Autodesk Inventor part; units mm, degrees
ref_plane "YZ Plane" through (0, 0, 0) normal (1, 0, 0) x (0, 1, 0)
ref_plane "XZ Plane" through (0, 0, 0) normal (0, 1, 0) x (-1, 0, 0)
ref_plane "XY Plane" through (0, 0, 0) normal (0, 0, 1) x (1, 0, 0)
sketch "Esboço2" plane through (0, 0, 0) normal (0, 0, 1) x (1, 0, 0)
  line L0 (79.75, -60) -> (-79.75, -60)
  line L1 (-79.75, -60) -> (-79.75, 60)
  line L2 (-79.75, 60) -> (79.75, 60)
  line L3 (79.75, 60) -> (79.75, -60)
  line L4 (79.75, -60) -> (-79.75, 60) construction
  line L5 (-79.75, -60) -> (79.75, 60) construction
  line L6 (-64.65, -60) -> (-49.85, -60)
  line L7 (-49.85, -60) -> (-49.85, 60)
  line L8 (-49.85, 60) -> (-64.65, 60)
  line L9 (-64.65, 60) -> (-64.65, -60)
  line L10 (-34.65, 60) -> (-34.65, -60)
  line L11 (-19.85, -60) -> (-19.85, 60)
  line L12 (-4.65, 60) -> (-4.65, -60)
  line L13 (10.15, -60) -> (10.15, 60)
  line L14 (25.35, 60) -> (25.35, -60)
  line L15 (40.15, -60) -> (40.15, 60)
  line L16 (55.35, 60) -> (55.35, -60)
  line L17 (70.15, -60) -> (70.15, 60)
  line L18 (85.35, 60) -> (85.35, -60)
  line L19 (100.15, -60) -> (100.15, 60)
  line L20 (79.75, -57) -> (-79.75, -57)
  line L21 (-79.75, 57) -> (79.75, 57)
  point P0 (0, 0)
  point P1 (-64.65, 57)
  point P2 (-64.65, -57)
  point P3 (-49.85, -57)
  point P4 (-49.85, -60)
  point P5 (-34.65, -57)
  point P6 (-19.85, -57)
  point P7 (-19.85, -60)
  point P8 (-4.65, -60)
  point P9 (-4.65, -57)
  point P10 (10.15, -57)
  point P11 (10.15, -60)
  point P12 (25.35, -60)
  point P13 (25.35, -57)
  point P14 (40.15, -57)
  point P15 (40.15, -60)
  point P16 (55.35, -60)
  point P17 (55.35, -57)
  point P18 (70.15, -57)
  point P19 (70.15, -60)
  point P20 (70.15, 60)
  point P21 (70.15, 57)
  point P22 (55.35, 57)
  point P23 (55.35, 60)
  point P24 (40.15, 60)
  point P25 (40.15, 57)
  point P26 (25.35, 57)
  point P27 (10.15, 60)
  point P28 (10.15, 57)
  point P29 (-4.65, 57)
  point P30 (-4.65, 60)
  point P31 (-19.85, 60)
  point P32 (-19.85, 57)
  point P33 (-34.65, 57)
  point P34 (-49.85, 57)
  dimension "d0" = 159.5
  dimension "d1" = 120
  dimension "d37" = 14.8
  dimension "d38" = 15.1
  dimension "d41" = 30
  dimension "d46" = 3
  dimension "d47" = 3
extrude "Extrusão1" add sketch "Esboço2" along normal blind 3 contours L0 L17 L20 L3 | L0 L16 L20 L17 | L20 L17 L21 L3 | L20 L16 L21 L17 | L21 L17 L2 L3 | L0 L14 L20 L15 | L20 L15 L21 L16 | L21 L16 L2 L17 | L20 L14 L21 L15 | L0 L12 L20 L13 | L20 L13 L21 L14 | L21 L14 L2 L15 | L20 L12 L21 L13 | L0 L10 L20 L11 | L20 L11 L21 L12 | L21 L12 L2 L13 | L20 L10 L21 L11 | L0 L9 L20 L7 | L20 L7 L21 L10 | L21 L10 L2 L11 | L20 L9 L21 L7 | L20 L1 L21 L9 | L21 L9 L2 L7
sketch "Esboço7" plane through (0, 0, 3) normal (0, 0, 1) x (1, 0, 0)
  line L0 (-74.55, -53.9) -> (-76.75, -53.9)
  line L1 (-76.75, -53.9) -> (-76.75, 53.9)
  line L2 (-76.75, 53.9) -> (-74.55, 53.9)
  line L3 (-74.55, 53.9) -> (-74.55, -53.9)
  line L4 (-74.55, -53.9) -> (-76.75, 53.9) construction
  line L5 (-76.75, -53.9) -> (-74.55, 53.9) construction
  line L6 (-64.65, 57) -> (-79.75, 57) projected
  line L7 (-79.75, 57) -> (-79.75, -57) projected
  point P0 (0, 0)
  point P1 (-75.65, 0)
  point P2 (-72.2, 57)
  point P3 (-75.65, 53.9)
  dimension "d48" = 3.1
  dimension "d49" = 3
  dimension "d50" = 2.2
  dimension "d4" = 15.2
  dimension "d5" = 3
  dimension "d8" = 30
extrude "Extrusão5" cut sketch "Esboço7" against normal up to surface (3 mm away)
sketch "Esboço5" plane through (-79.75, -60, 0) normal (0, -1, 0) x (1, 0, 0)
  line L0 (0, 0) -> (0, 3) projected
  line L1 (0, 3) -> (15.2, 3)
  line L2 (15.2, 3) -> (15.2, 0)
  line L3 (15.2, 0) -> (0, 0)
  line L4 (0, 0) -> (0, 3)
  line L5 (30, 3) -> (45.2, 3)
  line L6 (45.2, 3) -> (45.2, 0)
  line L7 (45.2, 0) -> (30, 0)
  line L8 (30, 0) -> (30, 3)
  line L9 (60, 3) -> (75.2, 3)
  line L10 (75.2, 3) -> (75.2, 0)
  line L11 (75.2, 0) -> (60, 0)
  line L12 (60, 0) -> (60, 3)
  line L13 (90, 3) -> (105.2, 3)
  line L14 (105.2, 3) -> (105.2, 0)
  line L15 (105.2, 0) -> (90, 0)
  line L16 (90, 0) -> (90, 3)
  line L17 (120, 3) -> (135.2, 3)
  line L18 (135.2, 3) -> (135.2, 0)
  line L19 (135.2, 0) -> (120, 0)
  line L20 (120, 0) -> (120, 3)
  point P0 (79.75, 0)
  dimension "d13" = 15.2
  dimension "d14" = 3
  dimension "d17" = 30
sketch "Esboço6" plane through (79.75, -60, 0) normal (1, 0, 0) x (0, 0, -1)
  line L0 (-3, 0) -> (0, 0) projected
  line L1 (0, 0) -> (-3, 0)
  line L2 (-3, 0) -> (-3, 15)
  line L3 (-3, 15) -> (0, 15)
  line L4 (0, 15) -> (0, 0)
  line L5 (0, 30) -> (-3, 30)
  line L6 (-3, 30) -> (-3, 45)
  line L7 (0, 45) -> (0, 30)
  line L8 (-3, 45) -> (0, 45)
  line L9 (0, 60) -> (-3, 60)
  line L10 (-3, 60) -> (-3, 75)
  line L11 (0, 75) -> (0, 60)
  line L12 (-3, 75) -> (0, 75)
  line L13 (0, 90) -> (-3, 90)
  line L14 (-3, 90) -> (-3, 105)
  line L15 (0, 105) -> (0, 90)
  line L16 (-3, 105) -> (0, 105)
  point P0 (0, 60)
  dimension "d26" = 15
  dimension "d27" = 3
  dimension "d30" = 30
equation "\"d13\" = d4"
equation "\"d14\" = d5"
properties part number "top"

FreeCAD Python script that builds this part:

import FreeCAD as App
import Part
import Sketcher
from FreeCAD import Vector
Q = App.Units.Quantity


def add_polygon(sketch, points):
    """Adds a closed chain of lines whose ends are joined by coincident constraints."""
    first, n = sketch.GeometryCount, len(points)
    for a, b in zip(points, points[1:] + points[:1]):
        sketch.addGeometry(Part.LineSegment(App.Vector(*a, 0), App.Vector(*b, 0)), False)
    for i in range(n):
        sketch.addConstraint(Sketcher.Constraint("Coincident", first + i, 2, first + (i + 1) % n, 1))

doc = App.newDocument("Part")
params = doc.addObject("Spreadsheet::Sheet", "Params")
for row, (alias, value) in enumerate([
    ("sketch1_height", "120 mm"),
    ("sketch1_height2", "3 mm"),
    ("sketch1_width", "14.8 mm"),
    ("sketch1_width2", "15.1 mm"),
    ("sketch1_width3", "24.4 mm"),
    ("pad1_length", "3 mm"),
    ("sketch2_width", "2.2 mm"),
    ("sketch2_height", "107.8 mm"),
    ("pocket1_length", "3 mm"),
], start=1):
    params.set(f"A{row}", alias)
    params.set(f"B{row}", "=" + value)
    params.setAlias(f"B{row}", alias)

body = doc.addObject("PartDesign::Body", "Body")

# Sketch on XY plane
sketch1 = body.newObject("Sketcher::SketchObject", "Sketch")
sketch1.AttachmentSupport = (doc.getObject("XY_Plane"), [""])
sketch1.MapMode = "FlatFace"
add_polygon(sketch1, [(79.75, -60), (79.75, 60), (55.35, 60), (55.35, 57), (40.15, 57), (40.15, 60), (25.35, 60), (25.35, 57), (10.15, 57), (10.15, 60), (-4.65, 60), (-4.65, 57), (-19.85, 57), (-19.85, 60), (-34.65, 60), (-34.65, 57), (-49.85, 57), (-49.85, 60), (-64.65, 60), (-64.65, 57), (-79.75, 57), (-79.75, -57), (-64.65, -57), (-64.65, -60), (-49.85, -60), (-49.85, -57), (-34.65, -57), (-34.65, -60), (-19.85, -60), (-19.85, -57), (-4.65, -57), (-4.65, -60), (10.15, -60), (10.15, -57), (25.35, -57), (25.35, -60), (40.15, -60), (40.15, -57), (55.35, -57), (55.35, -60)])  # lines 0-39
sketch1.addConstraint([
    Sketcher.Constraint("Vertical", 0),
    Sketcher.Constraint("Horizontal", 1),
    Sketcher.Constraint("Vertical", 2),
    Sketcher.Constraint("Horizontal", 3),
    Sketcher.Constraint("Vertical", 4),
    Sketcher.Constraint("Horizontal", 5),
    Sketcher.Constraint("Vertical", 6),
    Sketcher.Constraint("Horizontal", 7),
    Sketcher.Constraint("Vertical", 8),
    Sketcher.Constraint("Horizontal", 9),
    Sketcher.Constraint("Vertical", 10),
    Sketcher.Constraint("Horizontal", 11),
    Sketcher.Constraint("Vertical", 12),
    Sketcher.Constraint("Horizontal", 13),
    Sketcher.Constraint("Vertical", 14),
    Sketcher.Constraint("Horizontal", 15),
    Sketcher.Constraint("Vertical", 16),
    Sketcher.Constraint("Horizontal", 17),
    Sketcher.Constraint("Vertical", 18),
    Sketcher.Constraint("Horizontal", 19),
    Sketcher.Constraint("Vertical", 20),
    Sketcher.Constraint("Horizontal", 21),
    Sketcher.Constraint("Vertical", 22),
    Sketcher.Constraint("Horizontal", 23),
    Sketcher.Constraint("Vertical", 24),
    Sketcher.Constraint("Horizontal", 25),
    Sketcher.Constraint("Vertical", 26),
    Sketcher.Constraint("Horizontal", 27),
    Sketcher.Constraint("Vertical", 28),
    Sketcher.Constraint("Horizontal", 29),
    Sketcher.Constraint("Vertical", 30),
    Sketcher.Constraint("Horizontal", 31),
    Sketcher.Constraint("Vertical", 32),
    Sketcher.Constraint("Horizontal", 33),
    Sketcher.Constraint("Vertical", 34),
    Sketcher.Constraint("Horizontal", 35),
    Sketcher.Constraint("Vertical", 36),
    Sketcher.Constraint("Horizontal", 37),
    Sketcher.Constraint("Vertical", 38),
    Sketcher.Constraint("Horizontal", 39),
    Sketcher.Constraint("Symmetric", 18, 2, 21, 2, -1),
    Sketcher.Constraint("Symmetric", 16, 2, 23, 2, -1),
    Sketcher.Constraint("Symmetric", 14, 2, 25, 2, -1),
    Sketcher.Constraint("Symmetric", 12, 2, 27, 2, -1),
    Sketcher.Constraint("Symmetric", 10, 2, 29, 2, -1),
    Sketcher.Constraint("Symmetric", 8, 2, 31, 2, -1),
    Sketcher.Constraint("Symmetric", 6, 2, 33, 2, -1),
    Sketcher.Constraint("Symmetric", 4, 2, 35, 2, -1),
    Sketcher.Constraint("Symmetric", 2, 2, 37, 2, -1),
    Sketcher.Constraint("Horizontal", 1, 2, 4, 2),
    Sketcher.Constraint("Horizontal", 3, 2, 6, 2),
    Sketcher.Constraint("Horizontal", 5, 2, 8, 2),
    Sketcher.Constraint("Horizontal", 7, 2, 10, 2),
    Sketcher.Constraint("Horizontal", 9, 2, 12, 2),
    Sketcher.Constraint("Horizontal", 11, 2, 14, 2),
    Sketcher.Constraint("Horizontal", 13, 2, 16, 2),
    Sketcher.Constraint("Horizontal", 15, 2, 18, 2),
    Sketcher.Constraint("Horizontal", 35, 2, 38, 2),
    Sketcher.Constraint("Equal", 3, 7),
    Sketcher.Constraint("Equal", 5, 9),
    Sketcher.Constraint("Equal", 7, 11),
    Sketcher.Constraint("Equal", 9, 13),
    Sketcher.Constraint("Equal", 11, 15),
    Sketcher.Constraint("Equal", 13, 17),
    Sketcher.Constraint("DistanceY", 0, 1, 0, 2, Q("120 mm")),
    Sketcher.Constraint("DistanceY", 2, 2, 2, 1, Q("3 mm")),
    Sketcher.Constraint("DistanceX", 5, 2, 5, 1, Q("14.8 mm")),
    Sketcher.Constraint("DistanceX", 19, 2, 19, 1, Q("15.1 mm")),
    Sketcher.Constraint("DistanceX", 5, 2, 1, 2, Q("30 mm")),
    Sketcher.Constraint("DistanceX", 1, 2, 1, 1, Q("24.4 mm")),
    Sketcher.Constraint("DistanceX", -1, 1, 0, 2, Q("79.75 mm")),
])
sketch1.setExpression("Constraints[104]", "Params.sketch1_height")
sketch1.setExpression("Constraints[105]", "Params.sketch1_height2")
sketch1.setExpression("Constraints[106]", "Params.sketch1_width")
sketch1.setExpression("Constraints[107]", "Params.sketch1_width2")
sketch1.setExpression("Constraints[109]", "Params.sketch1_width3")
pad1 = body.newObject("PartDesign::Pad", "Pad")
pad1.Profile = sketch1
pad1.setExpression("Length", "Params.pad1_length")

# Sketch on XY plane
sketch2 = body.newObject("Sketcher::SketchObject", "Sketch001")
sketch2.AttachmentSupport = (doc.getObject("XY_Plane"), [""])
sketch2.MapMode = "FlatFace"
sketch2.AttachmentOffset = App.Placement(Vector(0, 0, 3), App.Rotation())
add_polygon(sketch2, [(-76.75, -53.9), (-74.55, -53.9), (-74.55, 53.9), (-76.75, 53.9)])  # lines 0-3
sketch2.addConstraint([
    Sketcher.Constraint("Horizontal", 0),
    Sketcher.Constraint("Vertical", 1),
    Sketcher.Constraint("Horizontal", 2),
    Sketcher.Constraint("Vertical", 3),
    Sketcher.Constraint("DistanceX", 0, 1, 0, 2, Q("2.2 mm")),
    Sketcher.Constraint("DistanceY", 1, 1, 1, 2, Q("107.8 mm")),
    Sketcher.Constraint("DistanceY", 0, 2, -1, 1, Q("53.9 mm")),
    Sketcher.Constraint("DistanceX", 0, 2, -1, 1, Q("74.55 mm")),
])
sketch2.setExpression("Constraints[8]", "Params.sketch2_width")
sketch2.setExpression("Constraints[9]", "Params.sketch2_height")
pocket1 = body.newObject("PartDesign::Pocket", "Pocket")
pocket1.Profile = sketch2
pocket1.setExpression("Length", "Params.pocket1_length")

doc.recompute()
